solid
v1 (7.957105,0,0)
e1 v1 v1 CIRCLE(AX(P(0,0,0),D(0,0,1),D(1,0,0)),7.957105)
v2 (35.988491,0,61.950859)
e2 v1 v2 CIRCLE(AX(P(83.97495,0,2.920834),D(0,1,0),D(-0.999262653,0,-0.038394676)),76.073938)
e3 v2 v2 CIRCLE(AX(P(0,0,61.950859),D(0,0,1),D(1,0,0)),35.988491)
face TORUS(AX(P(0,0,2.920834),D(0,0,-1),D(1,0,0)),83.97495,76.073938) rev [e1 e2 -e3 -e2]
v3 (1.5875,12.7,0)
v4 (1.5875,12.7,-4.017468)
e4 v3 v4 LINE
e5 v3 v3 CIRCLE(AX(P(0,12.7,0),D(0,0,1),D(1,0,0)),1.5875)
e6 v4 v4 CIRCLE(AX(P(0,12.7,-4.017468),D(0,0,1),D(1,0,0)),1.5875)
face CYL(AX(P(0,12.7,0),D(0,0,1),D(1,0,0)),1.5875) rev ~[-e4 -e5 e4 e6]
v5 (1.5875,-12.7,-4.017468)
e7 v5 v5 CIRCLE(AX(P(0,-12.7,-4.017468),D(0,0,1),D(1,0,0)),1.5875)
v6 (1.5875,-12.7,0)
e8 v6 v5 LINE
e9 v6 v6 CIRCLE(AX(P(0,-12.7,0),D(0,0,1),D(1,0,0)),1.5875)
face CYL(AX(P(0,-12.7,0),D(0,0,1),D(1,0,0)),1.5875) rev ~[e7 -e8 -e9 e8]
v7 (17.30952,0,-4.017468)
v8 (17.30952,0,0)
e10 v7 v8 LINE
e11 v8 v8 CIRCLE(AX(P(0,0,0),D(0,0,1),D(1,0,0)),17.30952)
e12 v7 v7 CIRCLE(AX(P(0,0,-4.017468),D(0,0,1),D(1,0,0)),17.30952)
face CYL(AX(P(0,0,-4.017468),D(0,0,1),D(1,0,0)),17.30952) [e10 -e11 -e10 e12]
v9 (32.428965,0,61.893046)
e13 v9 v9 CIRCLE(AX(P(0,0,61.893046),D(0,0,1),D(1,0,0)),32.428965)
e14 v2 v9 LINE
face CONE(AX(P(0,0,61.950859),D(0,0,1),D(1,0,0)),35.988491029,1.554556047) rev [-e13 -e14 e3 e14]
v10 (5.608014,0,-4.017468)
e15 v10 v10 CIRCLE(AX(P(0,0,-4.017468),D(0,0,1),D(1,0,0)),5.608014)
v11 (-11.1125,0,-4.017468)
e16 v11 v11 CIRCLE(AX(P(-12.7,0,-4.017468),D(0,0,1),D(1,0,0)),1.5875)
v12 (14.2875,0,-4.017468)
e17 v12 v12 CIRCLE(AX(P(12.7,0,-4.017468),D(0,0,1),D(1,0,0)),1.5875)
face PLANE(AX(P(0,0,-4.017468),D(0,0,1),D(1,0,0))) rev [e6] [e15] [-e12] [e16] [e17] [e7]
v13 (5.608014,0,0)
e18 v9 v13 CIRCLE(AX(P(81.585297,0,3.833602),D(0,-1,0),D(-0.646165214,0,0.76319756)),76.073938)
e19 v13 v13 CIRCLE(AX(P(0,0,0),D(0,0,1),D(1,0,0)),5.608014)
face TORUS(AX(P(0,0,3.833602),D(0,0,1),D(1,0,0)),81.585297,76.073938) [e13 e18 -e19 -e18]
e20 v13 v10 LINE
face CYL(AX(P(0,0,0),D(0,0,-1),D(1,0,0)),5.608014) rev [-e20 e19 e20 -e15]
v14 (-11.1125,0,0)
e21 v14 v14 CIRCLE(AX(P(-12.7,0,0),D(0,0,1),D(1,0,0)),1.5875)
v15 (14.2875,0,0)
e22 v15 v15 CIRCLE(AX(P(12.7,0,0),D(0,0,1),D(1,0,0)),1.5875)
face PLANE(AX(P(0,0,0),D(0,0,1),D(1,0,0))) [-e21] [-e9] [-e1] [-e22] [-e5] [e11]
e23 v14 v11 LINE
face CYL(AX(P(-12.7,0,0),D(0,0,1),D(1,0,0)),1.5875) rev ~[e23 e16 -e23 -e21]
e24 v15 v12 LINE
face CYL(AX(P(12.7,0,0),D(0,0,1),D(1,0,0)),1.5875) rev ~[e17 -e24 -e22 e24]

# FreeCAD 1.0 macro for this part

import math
import FreeCAD as App
import Part
import Sketcher

V = App.Vector
Q = App.Units.Quantity

doc = App.newDocument("Part")
body = doc.addObject("PartDesign::Body", "Body")

# Sketch on XZ plane
sketch1 = doc.addObject("Sketcher::SketchObject", "Sketch")
body.addObject(sketch1)
sketch1.AttachmentSupport = (doc.XZ_Plane, [""])
sketch1.MapMode = "FlatFace"
sketch1.addGeometry([
    Part.ArcOfCircle(Part.Circle(V(84, 2.9, 0), V(0, 0, 1), 76.1), math.radians(129), math.radians(182)),  # 0
    Part.LineSegment(V(36, 62, 0), V(32.4, 61.9, 0)),  # 1
    Part.ArcOfCircle(Part.Circle(V(81.6, 3.8, 0), V(0, 0, 1), 76.1), math.radians(130), math.radians(183)),  # 2
    Part.LineSegment(V(5.6, 0, 0), V(5.6, -4, 0)),  # 3
    Part.LineSegment(V(5.6, -4, 0), V(17.3, -4, 0)),  # 4
    Part.LineSegment(V(17.3, -4, 0), V(17.3, 0, 0)),  # 5
    Part.LineSegment(V(17.3, 0, 0), V(8, 0, 0)),  # 6
], False)
sketch1.addConstraint([
    Sketcher.Constraint("Coincident", 0, 1, 1, 1),
    Sketcher.Constraint("Coincident", 1, 2, 2, 1),
    Sketcher.Constraint("Coincident", 2, 2, 3, 1),
    Sketcher.Constraint("Coincident", 3, 2, 4, 1),
    Sketcher.Constraint("Coincident", 4, 2, 5, 1),
    Sketcher.Constraint("Coincident", 5, 2, 6, 1),
    Sketcher.Constraint("Coincident", 6, 2, 0, 2),
    Sketcher.Constraint("Vertical", 3),
    Sketcher.Constraint("Horizontal", 4),
    Sketcher.Constraint("Vertical", 5),
    Sketcher.Constraint("Horizontal", 6),
    Sketcher.Constraint("Equal", 0, 2),
    Sketcher.Constraint("PointOnObject", 2, 2, -1),
    Sketcher.Constraint("PointOnObject", 5, 2, -1),
    Sketcher.Constraint("Radius", 0, 76.073938),
    Sketcher.Constraint("DistanceY", -1, 1, 2, 3, 3.833602),
    Sketcher.Constraint("DistanceY", 3, 2, 0, 3, 6.938302),
    Sketcher.Constraint("DistanceX", 4, 1, 4, 2, 11.701506),
    Sketcher.Constraint("DistanceX", 6, 2, 6, 1, 9.352415),
    Sketcher.Constraint("DistanceY", 3, 2, 3, 1, 4.017468),
    Sketcher.Constraint("DistanceX", -1, 1, 0, 3, 83.97495),
    Sketcher.Constraint("DistanceX", -1, 1, 0, 1, 35.988491),
    Sketcher.Constraint("DistanceY", 0, 3, 1, 2, 58.972212),
])
revolution = doc.addObject("PartDesign::Revolution", "Revolution")
body.addObject(revolution)
revolution.Profile = sketch1
revolution.ReferenceAxis = (sketch1, ["V_Axis"])
revolution.Angle = 360

# Sketch on XY plane
sketch2 = doc.addObject("Sketcher::SketchObject", "Sketch001")
body.addObject(sketch2)
sketch2.AttachmentSupport = (doc.XY_Plane, [""])
sketch2.MapMode = "FlatFace"
sketch2.addGeometry([
    Part.Circle(V(0, 12.7, 0), V(0, 0, 1), 1.6),
    Part.Circle(V(-12.7, 0, 0), V(0, 0, 1), 1.6),
    Part.Circle(V(0, -12.7, 0), V(0, 0, 1), 1.6),
    Part.Circle(V(12.7, 0, 0), V(0, 0, 1), 1.6),
], False)
sketch2.addConstraint([
    Sketcher.Constraint("Equal", 0, 1),
    Sketcher.Constraint("Equal", 1, 2),
    Sketcher.Constraint("Equal", 2, 3),
    Sketcher.Constraint("Symmetric", 0, 3, 2, 3, -1, 1),
    Sketcher.Constraint("Symmetric", 1, 3, 3, 3, -1, 1),
    Sketcher.Constraint("PointOnObject", 0, 3, -2),
    Sketcher.Constraint("PointOnObject", 1, 3, -1),
    Sketcher.Constraint("Diameter", 0, Q("0.125 in")),
    Sketcher.Constraint("DistanceY", 2, 3, 0, 3, Q("1 in")),
    Sketcher.Constraint("DistanceX", 1, 3, 3, 3, Q("1 in")),
])
pocket1 = doc.addObject("PartDesign::Pocket", "Pocket")
body.addObject(pocket1)
pocket1.Profile = sketch2
pocket1.Type = "ThroughAll"

doc.recompute()
